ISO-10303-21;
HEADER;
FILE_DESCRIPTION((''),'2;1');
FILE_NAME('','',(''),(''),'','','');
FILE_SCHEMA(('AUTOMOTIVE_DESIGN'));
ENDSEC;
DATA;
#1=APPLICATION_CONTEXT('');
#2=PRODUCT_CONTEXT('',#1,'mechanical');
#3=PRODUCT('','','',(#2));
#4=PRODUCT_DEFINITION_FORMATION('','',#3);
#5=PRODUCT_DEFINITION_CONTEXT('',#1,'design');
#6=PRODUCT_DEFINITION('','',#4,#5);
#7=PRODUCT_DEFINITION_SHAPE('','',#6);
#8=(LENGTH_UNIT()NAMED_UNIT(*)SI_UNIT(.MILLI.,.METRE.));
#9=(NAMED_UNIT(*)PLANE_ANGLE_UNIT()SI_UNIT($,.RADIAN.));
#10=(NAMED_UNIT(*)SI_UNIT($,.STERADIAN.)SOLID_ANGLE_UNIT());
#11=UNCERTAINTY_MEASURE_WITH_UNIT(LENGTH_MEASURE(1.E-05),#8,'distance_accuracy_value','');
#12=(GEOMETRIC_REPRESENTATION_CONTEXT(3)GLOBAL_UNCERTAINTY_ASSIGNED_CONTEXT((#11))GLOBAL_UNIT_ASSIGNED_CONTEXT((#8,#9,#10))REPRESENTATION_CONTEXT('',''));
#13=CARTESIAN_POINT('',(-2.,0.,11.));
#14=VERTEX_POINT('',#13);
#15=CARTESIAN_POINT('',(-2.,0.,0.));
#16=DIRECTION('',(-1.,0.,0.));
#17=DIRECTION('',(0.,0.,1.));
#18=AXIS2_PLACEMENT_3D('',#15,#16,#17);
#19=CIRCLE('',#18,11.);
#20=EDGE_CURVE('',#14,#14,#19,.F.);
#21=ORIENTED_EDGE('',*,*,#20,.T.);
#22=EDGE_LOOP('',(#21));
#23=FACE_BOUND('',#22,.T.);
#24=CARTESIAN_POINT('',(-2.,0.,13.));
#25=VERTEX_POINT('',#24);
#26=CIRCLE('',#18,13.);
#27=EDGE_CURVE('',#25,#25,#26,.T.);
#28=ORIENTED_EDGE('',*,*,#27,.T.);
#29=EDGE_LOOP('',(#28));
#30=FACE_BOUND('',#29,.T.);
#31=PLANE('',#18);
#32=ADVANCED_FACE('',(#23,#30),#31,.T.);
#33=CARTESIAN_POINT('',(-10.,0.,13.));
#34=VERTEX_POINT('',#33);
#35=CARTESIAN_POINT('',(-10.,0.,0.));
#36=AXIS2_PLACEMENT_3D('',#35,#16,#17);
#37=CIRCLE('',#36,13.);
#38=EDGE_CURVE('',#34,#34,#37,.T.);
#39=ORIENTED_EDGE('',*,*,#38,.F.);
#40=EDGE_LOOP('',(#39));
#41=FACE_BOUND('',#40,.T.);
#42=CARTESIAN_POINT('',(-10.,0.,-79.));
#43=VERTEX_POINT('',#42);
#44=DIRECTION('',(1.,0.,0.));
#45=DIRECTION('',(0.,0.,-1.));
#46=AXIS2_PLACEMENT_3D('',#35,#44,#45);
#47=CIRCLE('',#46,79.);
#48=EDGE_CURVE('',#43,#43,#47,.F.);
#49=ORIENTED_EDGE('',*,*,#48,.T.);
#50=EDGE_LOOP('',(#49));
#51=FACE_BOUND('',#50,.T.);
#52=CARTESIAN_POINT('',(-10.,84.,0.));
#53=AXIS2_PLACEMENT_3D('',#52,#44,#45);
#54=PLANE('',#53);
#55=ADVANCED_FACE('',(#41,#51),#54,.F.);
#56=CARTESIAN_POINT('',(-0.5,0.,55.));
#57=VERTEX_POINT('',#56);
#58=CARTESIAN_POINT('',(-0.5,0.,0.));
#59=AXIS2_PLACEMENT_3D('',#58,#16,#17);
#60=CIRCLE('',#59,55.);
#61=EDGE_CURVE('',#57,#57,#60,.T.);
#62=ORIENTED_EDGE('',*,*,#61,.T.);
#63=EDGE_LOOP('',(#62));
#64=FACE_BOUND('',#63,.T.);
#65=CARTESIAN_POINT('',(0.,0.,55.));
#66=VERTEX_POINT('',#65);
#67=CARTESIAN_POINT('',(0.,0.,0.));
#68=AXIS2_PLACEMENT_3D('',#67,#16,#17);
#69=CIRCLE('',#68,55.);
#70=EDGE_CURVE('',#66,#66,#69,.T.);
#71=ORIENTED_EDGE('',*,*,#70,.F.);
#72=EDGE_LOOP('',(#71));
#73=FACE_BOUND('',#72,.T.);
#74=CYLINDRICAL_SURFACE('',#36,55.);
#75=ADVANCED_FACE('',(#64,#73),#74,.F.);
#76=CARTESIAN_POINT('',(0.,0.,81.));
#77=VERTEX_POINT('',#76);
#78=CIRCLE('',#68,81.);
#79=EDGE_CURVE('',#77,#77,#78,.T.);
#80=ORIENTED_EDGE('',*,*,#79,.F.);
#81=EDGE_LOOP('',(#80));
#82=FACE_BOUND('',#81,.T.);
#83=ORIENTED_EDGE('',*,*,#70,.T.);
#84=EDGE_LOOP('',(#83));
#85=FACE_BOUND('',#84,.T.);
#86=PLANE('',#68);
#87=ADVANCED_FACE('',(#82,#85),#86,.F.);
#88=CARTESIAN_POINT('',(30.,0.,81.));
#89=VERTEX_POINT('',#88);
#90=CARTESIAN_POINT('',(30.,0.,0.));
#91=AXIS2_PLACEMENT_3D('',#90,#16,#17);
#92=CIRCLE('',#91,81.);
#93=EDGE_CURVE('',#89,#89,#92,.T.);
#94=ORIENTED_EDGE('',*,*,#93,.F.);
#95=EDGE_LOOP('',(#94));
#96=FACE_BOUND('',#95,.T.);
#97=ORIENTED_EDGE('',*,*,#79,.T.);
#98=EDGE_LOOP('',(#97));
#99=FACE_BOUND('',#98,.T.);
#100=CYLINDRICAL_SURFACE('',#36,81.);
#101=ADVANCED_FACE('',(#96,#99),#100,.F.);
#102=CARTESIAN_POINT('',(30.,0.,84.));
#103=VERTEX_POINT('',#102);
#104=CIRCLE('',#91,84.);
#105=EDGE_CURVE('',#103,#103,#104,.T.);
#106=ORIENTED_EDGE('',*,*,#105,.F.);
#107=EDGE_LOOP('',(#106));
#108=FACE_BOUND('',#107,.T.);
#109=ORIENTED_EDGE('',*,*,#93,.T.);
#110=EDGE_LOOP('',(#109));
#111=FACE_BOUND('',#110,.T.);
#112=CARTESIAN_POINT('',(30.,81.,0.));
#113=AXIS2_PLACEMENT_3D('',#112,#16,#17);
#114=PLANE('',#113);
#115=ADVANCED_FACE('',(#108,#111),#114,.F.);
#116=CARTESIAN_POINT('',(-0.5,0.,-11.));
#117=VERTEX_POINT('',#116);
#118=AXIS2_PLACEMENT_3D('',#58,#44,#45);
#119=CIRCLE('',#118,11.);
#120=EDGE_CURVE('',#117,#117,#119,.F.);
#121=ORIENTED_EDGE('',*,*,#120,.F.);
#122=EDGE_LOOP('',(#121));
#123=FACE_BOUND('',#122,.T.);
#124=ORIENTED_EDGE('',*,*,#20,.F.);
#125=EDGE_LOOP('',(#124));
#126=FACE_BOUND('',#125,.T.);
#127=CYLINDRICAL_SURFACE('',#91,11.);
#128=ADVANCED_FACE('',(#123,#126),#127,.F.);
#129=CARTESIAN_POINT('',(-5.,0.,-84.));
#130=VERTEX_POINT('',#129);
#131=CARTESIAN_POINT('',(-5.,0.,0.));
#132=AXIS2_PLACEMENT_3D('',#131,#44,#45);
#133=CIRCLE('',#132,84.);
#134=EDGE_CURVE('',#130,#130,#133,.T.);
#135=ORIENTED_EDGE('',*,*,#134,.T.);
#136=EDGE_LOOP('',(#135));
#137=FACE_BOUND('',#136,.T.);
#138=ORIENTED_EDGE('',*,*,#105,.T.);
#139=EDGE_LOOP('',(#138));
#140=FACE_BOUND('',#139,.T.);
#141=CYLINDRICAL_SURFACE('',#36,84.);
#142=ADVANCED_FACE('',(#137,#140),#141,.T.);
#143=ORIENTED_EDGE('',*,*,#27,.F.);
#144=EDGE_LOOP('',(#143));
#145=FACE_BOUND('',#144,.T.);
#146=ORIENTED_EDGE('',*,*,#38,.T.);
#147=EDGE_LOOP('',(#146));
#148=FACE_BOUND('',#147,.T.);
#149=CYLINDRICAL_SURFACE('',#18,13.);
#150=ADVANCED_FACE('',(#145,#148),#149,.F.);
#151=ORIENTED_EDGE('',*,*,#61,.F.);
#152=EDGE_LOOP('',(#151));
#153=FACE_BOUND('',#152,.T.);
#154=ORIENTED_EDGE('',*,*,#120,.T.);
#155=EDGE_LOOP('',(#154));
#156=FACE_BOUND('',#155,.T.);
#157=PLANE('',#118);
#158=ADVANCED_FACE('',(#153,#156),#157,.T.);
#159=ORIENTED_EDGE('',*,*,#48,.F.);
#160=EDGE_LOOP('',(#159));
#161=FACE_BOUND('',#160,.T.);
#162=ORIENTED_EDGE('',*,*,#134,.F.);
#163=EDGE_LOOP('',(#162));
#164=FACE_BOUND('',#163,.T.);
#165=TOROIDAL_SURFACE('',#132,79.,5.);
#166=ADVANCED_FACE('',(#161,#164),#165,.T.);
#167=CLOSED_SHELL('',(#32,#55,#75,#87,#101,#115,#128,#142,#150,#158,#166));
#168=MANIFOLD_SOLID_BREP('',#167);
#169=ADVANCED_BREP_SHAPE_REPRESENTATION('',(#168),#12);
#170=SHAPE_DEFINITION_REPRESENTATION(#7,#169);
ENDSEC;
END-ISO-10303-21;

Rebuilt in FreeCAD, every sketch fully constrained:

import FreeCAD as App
import Part
import Sketcher

V = App.Vector


def edges_at(feature, points):
    """Names of the edges that pass closest to the given points."""
    edges = feature.Shape.Edges
    near = lambda p: min(range(len(edges)), key=lambda i: edges[i].distToShape(Part.Vertex(*p))[0])
    return sorted({f"Edge{near(p) + 1}" for p in points})


def add_polygon(sketch, points):
    """Adds a closed chain of lines whose ends are joined by coincident constraints."""
    first, n = sketch.GeometryCount, len(points)
    for a, b in zip(points, points[1:] + points[:1]):
        sketch.addGeometry(Part.LineSegment(App.Vector(*a, 0), App.Vector(*b, 0)), False)
    for i in range(n):
        sketch.addConstraint(Sketcher.Constraint("Coincident", first + i, 2, first + (i + 1) % n, 1))

doc = App.newDocument("Part")
body = doc.addObject("PartDesign::Body", "Body")

# Sketch on XY plane
sketch1 = doc.addObject("Sketcher::SketchObject", "Sketch")
body.addObject(sketch1)
sketch1.AttachmentSupport = (doc.XY_Plane, [""])
sketch1.MapMode = "FlatFace"
add_polygon(sketch1, [(0, 0), (0, 81), (30, 81), (30, 84), (-10, 84), (-10, 0)])  # lines 0-5
sketch1.addConstraint(Sketcher.Constraint("Vertical", 0))
sketch1.addConstraint(Sketcher.Constraint("Horizontal", 1))
sketch1.addConstraint(Sketcher.Constraint("Vertical", 2))
sketch1.addConstraint(Sketcher.Constraint("Horizontal", 3))
sketch1.addConstraint(Sketcher.Constraint("Vertical", 4))
sketch1.addConstraint(Sketcher.Constraint("Horizontal", 5))
sketch1.addConstraint(Sketcher.Constraint("Coincident", 5, 2, -1, 1))
sketch1.addConstraint(Sketcher.Constraint("DistanceX", 1, 1, 1, 2, 30.0))
sketch1.addConstraint(Sketcher.Constraint("DistanceX", 3, 2, 3, 1, 40.0))
sketch1.addConstraint(Sketcher.Constraint("DistanceY", 0, 1, 0, 2, 81.0))
sketch1.addConstraint(Sketcher.Constraint("DistanceY", 2, 1, 2, 2, 3.0))
revolution = doc.addObject("PartDesign::Revolution", "Revolution")
body.addObject(revolution)
revolution.Profile = sketch1
revolution.ReferenceAxis = (sketch1, ["H_Axis"])
revolution.Angle = 360
doc.recompute()

fillet = doc.addObject("PartDesign::Fillet", "Fillet")
body.addObject(fillet)
fillet.Base = (revolution, edges_at(revolution, [(-10, -84, 0)]))
fillet.Radius = 5

# Sketch on YZ plane
sketch2 = doc.addObject("Sketcher::SketchObject", "Sketch001")
body.addObject(sketch2)
sketch2.AttachmentSupport = (doc.YZ_Plane, [""])
sketch2.MapMode = "FlatFace"
sketch2.AttachmentOffset = App.Placement(V(0, 0, -10), App.Rotation())
sketch2.addGeometry(Part.Circle(V(0, 0, 0), V(0, 0, 1), 11), False)
sketch2.addConstraint(Sketcher.Constraint("Coincident", 0, 3, -1, 1))
sketch2.addConstraint(Sketcher.Constraint("Diameter", 0, 22.0))
pocket1 = doc.addObject("PartDesign::Pocket", "Pocket")
body.addObject(pocket1)
pocket1.Profile = sketch2
pocket1.Type = "ThroughAll"
pocket1.Reversed = True

# Sketch on XY plane
sketch3 = doc.addObject("Sketcher::SketchObject", "Sketch002")
body.addObject(sketch3)
sketch3.AttachmentSupport = (doc.XY_Plane, [""])
sketch3.MapMode = "FlatFace"
add_polygon(sketch3, [(-0.5, 55), (-0.5, 0), (0, 0), (0, 55)])  # lines 0-3
sketch3.addConstraint(Sketcher.Constraint("Vertical", 0))
sketch3.addConstraint(Sketcher.Constraint("Horizontal", 1))
sketch3.addConstraint(Sketcher.Constraint("Vertical", 2))
sketch3.addConstraint(Sketcher.Constraint("Horizontal", 3))
sketch3.addConstraint(Sketcher.Constraint("Coincident", 1, 2, -1, 1))
sketch3.addConstraint(Sketcher.Constraint("DistanceY", 0, 2, 0, 1, 55.0))
sketch3.addConstraint(Sketcher.Constraint("DistanceX", 1, 1, 1, 2, 0.5))
groove = doc.addObject("PartDesign::Groove", "Groove")
body.addObject(groove)
groove.Profile = sketch3
groove.ReferenceAxis = (sketch3, ["H_Axis"])
groove.Angle = 360

# Sketch on YZ plane
sketch4 = doc.addObject("Sketcher::SketchObject", "Sketch003")
body.addObject(sketch4)
sketch4.AttachmentSupport = (doc.YZ_Plane, [""])
sketch4.MapMode = "FlatFace"
sketch4.AttachmentOffset = App.Placement(V(0, 0, -10), App.Rotation())
sketch4.addGeometry(Part.Circle(V(0, 0, 0), V(0, 0, 1), 13), False)
sketch4.addConstraint(Sketcher.Constraint("Coincident", 0, 3, -1, 1))
sketch4.addConstraint(Sketcher.Constraint("Diameter", 0, 26.0))
pocket2 = doc.addObject("PartDesign::Pocket", "Pocket001")
body.addObject(pocket2)
pocket2.Profile = sketch4
pocket2.Length = 8
pocket2.Reversed = True

doc.recompute()
